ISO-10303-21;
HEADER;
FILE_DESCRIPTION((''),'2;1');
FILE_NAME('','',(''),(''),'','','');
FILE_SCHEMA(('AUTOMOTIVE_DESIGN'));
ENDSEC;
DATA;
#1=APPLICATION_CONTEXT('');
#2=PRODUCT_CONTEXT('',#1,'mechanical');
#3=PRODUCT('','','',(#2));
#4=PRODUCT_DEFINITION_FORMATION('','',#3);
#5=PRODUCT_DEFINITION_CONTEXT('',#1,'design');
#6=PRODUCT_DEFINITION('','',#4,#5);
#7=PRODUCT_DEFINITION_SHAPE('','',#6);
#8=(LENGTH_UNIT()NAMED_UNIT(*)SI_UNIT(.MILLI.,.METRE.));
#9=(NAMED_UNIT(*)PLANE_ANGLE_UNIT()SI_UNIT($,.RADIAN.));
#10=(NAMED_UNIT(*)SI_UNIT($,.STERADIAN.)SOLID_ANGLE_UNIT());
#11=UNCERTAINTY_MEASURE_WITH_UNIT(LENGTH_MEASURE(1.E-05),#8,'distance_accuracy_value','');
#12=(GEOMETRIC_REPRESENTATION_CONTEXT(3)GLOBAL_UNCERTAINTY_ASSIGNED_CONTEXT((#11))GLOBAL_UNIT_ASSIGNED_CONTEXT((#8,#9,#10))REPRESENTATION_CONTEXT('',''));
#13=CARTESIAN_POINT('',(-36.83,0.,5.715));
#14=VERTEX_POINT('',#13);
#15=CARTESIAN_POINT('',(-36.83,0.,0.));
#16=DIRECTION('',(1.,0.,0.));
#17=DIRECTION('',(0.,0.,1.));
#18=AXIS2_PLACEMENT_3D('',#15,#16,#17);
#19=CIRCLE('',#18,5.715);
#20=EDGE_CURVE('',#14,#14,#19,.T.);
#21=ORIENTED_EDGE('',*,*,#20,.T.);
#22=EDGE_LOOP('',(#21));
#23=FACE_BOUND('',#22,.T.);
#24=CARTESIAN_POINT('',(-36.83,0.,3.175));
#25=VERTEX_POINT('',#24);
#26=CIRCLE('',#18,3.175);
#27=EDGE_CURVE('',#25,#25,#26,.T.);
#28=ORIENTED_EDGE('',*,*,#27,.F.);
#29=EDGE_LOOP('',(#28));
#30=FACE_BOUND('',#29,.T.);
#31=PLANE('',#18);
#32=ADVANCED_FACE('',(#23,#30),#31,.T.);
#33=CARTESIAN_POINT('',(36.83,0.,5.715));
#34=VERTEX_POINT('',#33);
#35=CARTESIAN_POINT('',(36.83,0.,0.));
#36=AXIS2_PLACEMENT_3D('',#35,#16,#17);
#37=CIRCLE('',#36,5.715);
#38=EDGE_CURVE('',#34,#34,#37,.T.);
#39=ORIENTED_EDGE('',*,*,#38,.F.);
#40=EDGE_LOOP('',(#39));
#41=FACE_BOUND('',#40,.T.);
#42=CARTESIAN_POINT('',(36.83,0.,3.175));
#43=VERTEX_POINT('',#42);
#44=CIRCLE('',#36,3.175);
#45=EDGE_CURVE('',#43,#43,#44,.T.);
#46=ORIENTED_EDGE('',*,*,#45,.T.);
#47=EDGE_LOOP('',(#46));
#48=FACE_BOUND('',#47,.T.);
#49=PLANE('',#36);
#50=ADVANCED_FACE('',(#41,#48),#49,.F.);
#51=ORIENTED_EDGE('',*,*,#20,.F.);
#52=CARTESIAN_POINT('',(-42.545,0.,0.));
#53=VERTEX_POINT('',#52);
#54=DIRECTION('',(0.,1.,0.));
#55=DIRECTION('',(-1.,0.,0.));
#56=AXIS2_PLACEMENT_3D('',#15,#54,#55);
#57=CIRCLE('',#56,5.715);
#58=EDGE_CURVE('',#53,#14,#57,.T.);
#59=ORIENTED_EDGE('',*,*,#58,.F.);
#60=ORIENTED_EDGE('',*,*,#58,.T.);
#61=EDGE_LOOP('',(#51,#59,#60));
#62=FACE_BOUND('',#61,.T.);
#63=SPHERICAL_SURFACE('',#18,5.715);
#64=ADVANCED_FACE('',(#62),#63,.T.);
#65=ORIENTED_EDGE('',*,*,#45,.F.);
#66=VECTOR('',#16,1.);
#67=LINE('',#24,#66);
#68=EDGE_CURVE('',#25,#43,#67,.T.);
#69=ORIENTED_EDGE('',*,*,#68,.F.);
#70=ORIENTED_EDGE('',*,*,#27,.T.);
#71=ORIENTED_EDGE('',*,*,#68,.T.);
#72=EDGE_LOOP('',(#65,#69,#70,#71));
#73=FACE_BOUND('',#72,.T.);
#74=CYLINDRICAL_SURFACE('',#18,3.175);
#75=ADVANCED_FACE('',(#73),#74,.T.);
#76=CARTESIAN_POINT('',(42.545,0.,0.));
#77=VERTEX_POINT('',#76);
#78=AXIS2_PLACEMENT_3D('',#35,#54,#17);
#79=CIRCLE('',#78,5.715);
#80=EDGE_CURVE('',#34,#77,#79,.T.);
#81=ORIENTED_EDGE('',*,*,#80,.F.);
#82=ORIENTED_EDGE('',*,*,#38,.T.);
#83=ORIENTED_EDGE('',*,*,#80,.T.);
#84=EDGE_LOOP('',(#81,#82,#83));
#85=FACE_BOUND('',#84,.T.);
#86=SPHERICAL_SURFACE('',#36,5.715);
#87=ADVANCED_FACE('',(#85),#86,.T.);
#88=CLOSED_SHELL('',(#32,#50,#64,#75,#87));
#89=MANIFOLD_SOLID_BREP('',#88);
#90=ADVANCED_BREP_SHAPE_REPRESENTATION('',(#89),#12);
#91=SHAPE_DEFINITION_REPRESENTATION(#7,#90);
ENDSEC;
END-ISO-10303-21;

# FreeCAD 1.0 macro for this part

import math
import FreeCAD as App
import Part
import Sketcher
from FreeCAD import Vector
Q = App.Units.Quantity

doc = App.newDocument("Part")
body = doc.addObject("PartDesign::Body", "Body")

sketch1 = doc.addObject("Sketcher::SketchObject", "Sketch")
body.addObject(sketch1)
sketch1.AttachmentSupport = (doc.XZ_Plane, [""])
sketch1.MapMode = "FlatFace"
sketch1.addGeometry(Part.LineSegment(Vector(-36.8, 5.7, 0), Vector(-36.8, 3.2, 0)), False)
sketch1.addGeometry(Part.LineSegment(Vector(-36.8, 3.2, 0), Vector(36.8, 3.2, 0)), False)
sketch1.addGeometry(Part.LineSegment(Vector(36.8, 3.2, 0), Vector(36.8, 5.7, 0)), False)
sketch1.addGeometry(Part.ArcOfCircle(Part.Circle(Vector(36.8, 0, 0), Vector(0, 0, 1), 5.7), math.radians(0), math.radians(90)), False)
sketch1.addGeometry(Part.LineSegment(Vector(42.5, 0, 0), Vector(-42.5, 0, 0)), False)
sketch1.addGeometry(Part.ArcOfCircle(Part.Circle(Vector(-36.8, 0, 0), Vector(0, 0, 1), 5.7), math.radians(90), math.radians(180)), False)
sketch1.addConstraint(Sketcher.Constraint("Coincident", 0, 2, 1, 1))
sketch1.addConstraint(Sketcher.Constraint("Coincident", 1, 2, 2, 1))
sketch1.addConstraint(Sketcher.Constraint("Coincident", 2, 2, 3, 2))
sketch1.addConstraint(Sketcher.Constraint("Coincident", 3, 1, 4, 1))
sketch1.addConstraint(Sketcher.Constraint("Coincident", 4, 2, 5, 2))
sketch1.addConstraint(Sketcher.Constraint("Coincident", 5, 1, 0, 1))
sketch1.addConstraint(Sketcher.Constraint("Vertical", 0))
sketch1.addConstraint(Sketcher.Constraint("Horizontal", 1))
sketch1.addConstraint(Sketcher.Constraint("Vertical", 2))
sketch1.addConstraint(Sketcher.Constraint("Horizontal", 4))
sketch1.addConstraint(Sketcher.Constraint("Equal", 3, 5))
sketch1.addConstraint(Sketcher.Constraint("Symmetric", 3, 3, 5, 3, -1, 1))
sketch1.addConstraint(Sketcher.Constraint("Symmetric", 2, 2, 5, 1, -2))
sketch1.addConstraint(Sketcher.Constraint("PointOnObject", 3, 1, -1))
sketch1.addConstraint(Sketcher.Constraint("Vertical", 5, 3, 0, 2))
sketch1.addConstraint(Sketcher.Constraint("DistanceX", 1, 1, 1, 2, Q("2.9 in")))
sketch1.addConstraint(Sketcher.Constraint("DistanceY", 0, 2, 0, 1, Q("0.1 in")))
sketch1.addConstraint(Sketcher.Constraint("Radius", 3, Q("0.225 in")))
revolution = doc.addObject("PartDesign::Revolution", "Revolution")
body.addObject(revolution)
revolution.Profile = sketch1
revolution.ReferenceAxis = (sketch1, ["H_Axis"])
revolution.Angle = 360

doc.recompute()
